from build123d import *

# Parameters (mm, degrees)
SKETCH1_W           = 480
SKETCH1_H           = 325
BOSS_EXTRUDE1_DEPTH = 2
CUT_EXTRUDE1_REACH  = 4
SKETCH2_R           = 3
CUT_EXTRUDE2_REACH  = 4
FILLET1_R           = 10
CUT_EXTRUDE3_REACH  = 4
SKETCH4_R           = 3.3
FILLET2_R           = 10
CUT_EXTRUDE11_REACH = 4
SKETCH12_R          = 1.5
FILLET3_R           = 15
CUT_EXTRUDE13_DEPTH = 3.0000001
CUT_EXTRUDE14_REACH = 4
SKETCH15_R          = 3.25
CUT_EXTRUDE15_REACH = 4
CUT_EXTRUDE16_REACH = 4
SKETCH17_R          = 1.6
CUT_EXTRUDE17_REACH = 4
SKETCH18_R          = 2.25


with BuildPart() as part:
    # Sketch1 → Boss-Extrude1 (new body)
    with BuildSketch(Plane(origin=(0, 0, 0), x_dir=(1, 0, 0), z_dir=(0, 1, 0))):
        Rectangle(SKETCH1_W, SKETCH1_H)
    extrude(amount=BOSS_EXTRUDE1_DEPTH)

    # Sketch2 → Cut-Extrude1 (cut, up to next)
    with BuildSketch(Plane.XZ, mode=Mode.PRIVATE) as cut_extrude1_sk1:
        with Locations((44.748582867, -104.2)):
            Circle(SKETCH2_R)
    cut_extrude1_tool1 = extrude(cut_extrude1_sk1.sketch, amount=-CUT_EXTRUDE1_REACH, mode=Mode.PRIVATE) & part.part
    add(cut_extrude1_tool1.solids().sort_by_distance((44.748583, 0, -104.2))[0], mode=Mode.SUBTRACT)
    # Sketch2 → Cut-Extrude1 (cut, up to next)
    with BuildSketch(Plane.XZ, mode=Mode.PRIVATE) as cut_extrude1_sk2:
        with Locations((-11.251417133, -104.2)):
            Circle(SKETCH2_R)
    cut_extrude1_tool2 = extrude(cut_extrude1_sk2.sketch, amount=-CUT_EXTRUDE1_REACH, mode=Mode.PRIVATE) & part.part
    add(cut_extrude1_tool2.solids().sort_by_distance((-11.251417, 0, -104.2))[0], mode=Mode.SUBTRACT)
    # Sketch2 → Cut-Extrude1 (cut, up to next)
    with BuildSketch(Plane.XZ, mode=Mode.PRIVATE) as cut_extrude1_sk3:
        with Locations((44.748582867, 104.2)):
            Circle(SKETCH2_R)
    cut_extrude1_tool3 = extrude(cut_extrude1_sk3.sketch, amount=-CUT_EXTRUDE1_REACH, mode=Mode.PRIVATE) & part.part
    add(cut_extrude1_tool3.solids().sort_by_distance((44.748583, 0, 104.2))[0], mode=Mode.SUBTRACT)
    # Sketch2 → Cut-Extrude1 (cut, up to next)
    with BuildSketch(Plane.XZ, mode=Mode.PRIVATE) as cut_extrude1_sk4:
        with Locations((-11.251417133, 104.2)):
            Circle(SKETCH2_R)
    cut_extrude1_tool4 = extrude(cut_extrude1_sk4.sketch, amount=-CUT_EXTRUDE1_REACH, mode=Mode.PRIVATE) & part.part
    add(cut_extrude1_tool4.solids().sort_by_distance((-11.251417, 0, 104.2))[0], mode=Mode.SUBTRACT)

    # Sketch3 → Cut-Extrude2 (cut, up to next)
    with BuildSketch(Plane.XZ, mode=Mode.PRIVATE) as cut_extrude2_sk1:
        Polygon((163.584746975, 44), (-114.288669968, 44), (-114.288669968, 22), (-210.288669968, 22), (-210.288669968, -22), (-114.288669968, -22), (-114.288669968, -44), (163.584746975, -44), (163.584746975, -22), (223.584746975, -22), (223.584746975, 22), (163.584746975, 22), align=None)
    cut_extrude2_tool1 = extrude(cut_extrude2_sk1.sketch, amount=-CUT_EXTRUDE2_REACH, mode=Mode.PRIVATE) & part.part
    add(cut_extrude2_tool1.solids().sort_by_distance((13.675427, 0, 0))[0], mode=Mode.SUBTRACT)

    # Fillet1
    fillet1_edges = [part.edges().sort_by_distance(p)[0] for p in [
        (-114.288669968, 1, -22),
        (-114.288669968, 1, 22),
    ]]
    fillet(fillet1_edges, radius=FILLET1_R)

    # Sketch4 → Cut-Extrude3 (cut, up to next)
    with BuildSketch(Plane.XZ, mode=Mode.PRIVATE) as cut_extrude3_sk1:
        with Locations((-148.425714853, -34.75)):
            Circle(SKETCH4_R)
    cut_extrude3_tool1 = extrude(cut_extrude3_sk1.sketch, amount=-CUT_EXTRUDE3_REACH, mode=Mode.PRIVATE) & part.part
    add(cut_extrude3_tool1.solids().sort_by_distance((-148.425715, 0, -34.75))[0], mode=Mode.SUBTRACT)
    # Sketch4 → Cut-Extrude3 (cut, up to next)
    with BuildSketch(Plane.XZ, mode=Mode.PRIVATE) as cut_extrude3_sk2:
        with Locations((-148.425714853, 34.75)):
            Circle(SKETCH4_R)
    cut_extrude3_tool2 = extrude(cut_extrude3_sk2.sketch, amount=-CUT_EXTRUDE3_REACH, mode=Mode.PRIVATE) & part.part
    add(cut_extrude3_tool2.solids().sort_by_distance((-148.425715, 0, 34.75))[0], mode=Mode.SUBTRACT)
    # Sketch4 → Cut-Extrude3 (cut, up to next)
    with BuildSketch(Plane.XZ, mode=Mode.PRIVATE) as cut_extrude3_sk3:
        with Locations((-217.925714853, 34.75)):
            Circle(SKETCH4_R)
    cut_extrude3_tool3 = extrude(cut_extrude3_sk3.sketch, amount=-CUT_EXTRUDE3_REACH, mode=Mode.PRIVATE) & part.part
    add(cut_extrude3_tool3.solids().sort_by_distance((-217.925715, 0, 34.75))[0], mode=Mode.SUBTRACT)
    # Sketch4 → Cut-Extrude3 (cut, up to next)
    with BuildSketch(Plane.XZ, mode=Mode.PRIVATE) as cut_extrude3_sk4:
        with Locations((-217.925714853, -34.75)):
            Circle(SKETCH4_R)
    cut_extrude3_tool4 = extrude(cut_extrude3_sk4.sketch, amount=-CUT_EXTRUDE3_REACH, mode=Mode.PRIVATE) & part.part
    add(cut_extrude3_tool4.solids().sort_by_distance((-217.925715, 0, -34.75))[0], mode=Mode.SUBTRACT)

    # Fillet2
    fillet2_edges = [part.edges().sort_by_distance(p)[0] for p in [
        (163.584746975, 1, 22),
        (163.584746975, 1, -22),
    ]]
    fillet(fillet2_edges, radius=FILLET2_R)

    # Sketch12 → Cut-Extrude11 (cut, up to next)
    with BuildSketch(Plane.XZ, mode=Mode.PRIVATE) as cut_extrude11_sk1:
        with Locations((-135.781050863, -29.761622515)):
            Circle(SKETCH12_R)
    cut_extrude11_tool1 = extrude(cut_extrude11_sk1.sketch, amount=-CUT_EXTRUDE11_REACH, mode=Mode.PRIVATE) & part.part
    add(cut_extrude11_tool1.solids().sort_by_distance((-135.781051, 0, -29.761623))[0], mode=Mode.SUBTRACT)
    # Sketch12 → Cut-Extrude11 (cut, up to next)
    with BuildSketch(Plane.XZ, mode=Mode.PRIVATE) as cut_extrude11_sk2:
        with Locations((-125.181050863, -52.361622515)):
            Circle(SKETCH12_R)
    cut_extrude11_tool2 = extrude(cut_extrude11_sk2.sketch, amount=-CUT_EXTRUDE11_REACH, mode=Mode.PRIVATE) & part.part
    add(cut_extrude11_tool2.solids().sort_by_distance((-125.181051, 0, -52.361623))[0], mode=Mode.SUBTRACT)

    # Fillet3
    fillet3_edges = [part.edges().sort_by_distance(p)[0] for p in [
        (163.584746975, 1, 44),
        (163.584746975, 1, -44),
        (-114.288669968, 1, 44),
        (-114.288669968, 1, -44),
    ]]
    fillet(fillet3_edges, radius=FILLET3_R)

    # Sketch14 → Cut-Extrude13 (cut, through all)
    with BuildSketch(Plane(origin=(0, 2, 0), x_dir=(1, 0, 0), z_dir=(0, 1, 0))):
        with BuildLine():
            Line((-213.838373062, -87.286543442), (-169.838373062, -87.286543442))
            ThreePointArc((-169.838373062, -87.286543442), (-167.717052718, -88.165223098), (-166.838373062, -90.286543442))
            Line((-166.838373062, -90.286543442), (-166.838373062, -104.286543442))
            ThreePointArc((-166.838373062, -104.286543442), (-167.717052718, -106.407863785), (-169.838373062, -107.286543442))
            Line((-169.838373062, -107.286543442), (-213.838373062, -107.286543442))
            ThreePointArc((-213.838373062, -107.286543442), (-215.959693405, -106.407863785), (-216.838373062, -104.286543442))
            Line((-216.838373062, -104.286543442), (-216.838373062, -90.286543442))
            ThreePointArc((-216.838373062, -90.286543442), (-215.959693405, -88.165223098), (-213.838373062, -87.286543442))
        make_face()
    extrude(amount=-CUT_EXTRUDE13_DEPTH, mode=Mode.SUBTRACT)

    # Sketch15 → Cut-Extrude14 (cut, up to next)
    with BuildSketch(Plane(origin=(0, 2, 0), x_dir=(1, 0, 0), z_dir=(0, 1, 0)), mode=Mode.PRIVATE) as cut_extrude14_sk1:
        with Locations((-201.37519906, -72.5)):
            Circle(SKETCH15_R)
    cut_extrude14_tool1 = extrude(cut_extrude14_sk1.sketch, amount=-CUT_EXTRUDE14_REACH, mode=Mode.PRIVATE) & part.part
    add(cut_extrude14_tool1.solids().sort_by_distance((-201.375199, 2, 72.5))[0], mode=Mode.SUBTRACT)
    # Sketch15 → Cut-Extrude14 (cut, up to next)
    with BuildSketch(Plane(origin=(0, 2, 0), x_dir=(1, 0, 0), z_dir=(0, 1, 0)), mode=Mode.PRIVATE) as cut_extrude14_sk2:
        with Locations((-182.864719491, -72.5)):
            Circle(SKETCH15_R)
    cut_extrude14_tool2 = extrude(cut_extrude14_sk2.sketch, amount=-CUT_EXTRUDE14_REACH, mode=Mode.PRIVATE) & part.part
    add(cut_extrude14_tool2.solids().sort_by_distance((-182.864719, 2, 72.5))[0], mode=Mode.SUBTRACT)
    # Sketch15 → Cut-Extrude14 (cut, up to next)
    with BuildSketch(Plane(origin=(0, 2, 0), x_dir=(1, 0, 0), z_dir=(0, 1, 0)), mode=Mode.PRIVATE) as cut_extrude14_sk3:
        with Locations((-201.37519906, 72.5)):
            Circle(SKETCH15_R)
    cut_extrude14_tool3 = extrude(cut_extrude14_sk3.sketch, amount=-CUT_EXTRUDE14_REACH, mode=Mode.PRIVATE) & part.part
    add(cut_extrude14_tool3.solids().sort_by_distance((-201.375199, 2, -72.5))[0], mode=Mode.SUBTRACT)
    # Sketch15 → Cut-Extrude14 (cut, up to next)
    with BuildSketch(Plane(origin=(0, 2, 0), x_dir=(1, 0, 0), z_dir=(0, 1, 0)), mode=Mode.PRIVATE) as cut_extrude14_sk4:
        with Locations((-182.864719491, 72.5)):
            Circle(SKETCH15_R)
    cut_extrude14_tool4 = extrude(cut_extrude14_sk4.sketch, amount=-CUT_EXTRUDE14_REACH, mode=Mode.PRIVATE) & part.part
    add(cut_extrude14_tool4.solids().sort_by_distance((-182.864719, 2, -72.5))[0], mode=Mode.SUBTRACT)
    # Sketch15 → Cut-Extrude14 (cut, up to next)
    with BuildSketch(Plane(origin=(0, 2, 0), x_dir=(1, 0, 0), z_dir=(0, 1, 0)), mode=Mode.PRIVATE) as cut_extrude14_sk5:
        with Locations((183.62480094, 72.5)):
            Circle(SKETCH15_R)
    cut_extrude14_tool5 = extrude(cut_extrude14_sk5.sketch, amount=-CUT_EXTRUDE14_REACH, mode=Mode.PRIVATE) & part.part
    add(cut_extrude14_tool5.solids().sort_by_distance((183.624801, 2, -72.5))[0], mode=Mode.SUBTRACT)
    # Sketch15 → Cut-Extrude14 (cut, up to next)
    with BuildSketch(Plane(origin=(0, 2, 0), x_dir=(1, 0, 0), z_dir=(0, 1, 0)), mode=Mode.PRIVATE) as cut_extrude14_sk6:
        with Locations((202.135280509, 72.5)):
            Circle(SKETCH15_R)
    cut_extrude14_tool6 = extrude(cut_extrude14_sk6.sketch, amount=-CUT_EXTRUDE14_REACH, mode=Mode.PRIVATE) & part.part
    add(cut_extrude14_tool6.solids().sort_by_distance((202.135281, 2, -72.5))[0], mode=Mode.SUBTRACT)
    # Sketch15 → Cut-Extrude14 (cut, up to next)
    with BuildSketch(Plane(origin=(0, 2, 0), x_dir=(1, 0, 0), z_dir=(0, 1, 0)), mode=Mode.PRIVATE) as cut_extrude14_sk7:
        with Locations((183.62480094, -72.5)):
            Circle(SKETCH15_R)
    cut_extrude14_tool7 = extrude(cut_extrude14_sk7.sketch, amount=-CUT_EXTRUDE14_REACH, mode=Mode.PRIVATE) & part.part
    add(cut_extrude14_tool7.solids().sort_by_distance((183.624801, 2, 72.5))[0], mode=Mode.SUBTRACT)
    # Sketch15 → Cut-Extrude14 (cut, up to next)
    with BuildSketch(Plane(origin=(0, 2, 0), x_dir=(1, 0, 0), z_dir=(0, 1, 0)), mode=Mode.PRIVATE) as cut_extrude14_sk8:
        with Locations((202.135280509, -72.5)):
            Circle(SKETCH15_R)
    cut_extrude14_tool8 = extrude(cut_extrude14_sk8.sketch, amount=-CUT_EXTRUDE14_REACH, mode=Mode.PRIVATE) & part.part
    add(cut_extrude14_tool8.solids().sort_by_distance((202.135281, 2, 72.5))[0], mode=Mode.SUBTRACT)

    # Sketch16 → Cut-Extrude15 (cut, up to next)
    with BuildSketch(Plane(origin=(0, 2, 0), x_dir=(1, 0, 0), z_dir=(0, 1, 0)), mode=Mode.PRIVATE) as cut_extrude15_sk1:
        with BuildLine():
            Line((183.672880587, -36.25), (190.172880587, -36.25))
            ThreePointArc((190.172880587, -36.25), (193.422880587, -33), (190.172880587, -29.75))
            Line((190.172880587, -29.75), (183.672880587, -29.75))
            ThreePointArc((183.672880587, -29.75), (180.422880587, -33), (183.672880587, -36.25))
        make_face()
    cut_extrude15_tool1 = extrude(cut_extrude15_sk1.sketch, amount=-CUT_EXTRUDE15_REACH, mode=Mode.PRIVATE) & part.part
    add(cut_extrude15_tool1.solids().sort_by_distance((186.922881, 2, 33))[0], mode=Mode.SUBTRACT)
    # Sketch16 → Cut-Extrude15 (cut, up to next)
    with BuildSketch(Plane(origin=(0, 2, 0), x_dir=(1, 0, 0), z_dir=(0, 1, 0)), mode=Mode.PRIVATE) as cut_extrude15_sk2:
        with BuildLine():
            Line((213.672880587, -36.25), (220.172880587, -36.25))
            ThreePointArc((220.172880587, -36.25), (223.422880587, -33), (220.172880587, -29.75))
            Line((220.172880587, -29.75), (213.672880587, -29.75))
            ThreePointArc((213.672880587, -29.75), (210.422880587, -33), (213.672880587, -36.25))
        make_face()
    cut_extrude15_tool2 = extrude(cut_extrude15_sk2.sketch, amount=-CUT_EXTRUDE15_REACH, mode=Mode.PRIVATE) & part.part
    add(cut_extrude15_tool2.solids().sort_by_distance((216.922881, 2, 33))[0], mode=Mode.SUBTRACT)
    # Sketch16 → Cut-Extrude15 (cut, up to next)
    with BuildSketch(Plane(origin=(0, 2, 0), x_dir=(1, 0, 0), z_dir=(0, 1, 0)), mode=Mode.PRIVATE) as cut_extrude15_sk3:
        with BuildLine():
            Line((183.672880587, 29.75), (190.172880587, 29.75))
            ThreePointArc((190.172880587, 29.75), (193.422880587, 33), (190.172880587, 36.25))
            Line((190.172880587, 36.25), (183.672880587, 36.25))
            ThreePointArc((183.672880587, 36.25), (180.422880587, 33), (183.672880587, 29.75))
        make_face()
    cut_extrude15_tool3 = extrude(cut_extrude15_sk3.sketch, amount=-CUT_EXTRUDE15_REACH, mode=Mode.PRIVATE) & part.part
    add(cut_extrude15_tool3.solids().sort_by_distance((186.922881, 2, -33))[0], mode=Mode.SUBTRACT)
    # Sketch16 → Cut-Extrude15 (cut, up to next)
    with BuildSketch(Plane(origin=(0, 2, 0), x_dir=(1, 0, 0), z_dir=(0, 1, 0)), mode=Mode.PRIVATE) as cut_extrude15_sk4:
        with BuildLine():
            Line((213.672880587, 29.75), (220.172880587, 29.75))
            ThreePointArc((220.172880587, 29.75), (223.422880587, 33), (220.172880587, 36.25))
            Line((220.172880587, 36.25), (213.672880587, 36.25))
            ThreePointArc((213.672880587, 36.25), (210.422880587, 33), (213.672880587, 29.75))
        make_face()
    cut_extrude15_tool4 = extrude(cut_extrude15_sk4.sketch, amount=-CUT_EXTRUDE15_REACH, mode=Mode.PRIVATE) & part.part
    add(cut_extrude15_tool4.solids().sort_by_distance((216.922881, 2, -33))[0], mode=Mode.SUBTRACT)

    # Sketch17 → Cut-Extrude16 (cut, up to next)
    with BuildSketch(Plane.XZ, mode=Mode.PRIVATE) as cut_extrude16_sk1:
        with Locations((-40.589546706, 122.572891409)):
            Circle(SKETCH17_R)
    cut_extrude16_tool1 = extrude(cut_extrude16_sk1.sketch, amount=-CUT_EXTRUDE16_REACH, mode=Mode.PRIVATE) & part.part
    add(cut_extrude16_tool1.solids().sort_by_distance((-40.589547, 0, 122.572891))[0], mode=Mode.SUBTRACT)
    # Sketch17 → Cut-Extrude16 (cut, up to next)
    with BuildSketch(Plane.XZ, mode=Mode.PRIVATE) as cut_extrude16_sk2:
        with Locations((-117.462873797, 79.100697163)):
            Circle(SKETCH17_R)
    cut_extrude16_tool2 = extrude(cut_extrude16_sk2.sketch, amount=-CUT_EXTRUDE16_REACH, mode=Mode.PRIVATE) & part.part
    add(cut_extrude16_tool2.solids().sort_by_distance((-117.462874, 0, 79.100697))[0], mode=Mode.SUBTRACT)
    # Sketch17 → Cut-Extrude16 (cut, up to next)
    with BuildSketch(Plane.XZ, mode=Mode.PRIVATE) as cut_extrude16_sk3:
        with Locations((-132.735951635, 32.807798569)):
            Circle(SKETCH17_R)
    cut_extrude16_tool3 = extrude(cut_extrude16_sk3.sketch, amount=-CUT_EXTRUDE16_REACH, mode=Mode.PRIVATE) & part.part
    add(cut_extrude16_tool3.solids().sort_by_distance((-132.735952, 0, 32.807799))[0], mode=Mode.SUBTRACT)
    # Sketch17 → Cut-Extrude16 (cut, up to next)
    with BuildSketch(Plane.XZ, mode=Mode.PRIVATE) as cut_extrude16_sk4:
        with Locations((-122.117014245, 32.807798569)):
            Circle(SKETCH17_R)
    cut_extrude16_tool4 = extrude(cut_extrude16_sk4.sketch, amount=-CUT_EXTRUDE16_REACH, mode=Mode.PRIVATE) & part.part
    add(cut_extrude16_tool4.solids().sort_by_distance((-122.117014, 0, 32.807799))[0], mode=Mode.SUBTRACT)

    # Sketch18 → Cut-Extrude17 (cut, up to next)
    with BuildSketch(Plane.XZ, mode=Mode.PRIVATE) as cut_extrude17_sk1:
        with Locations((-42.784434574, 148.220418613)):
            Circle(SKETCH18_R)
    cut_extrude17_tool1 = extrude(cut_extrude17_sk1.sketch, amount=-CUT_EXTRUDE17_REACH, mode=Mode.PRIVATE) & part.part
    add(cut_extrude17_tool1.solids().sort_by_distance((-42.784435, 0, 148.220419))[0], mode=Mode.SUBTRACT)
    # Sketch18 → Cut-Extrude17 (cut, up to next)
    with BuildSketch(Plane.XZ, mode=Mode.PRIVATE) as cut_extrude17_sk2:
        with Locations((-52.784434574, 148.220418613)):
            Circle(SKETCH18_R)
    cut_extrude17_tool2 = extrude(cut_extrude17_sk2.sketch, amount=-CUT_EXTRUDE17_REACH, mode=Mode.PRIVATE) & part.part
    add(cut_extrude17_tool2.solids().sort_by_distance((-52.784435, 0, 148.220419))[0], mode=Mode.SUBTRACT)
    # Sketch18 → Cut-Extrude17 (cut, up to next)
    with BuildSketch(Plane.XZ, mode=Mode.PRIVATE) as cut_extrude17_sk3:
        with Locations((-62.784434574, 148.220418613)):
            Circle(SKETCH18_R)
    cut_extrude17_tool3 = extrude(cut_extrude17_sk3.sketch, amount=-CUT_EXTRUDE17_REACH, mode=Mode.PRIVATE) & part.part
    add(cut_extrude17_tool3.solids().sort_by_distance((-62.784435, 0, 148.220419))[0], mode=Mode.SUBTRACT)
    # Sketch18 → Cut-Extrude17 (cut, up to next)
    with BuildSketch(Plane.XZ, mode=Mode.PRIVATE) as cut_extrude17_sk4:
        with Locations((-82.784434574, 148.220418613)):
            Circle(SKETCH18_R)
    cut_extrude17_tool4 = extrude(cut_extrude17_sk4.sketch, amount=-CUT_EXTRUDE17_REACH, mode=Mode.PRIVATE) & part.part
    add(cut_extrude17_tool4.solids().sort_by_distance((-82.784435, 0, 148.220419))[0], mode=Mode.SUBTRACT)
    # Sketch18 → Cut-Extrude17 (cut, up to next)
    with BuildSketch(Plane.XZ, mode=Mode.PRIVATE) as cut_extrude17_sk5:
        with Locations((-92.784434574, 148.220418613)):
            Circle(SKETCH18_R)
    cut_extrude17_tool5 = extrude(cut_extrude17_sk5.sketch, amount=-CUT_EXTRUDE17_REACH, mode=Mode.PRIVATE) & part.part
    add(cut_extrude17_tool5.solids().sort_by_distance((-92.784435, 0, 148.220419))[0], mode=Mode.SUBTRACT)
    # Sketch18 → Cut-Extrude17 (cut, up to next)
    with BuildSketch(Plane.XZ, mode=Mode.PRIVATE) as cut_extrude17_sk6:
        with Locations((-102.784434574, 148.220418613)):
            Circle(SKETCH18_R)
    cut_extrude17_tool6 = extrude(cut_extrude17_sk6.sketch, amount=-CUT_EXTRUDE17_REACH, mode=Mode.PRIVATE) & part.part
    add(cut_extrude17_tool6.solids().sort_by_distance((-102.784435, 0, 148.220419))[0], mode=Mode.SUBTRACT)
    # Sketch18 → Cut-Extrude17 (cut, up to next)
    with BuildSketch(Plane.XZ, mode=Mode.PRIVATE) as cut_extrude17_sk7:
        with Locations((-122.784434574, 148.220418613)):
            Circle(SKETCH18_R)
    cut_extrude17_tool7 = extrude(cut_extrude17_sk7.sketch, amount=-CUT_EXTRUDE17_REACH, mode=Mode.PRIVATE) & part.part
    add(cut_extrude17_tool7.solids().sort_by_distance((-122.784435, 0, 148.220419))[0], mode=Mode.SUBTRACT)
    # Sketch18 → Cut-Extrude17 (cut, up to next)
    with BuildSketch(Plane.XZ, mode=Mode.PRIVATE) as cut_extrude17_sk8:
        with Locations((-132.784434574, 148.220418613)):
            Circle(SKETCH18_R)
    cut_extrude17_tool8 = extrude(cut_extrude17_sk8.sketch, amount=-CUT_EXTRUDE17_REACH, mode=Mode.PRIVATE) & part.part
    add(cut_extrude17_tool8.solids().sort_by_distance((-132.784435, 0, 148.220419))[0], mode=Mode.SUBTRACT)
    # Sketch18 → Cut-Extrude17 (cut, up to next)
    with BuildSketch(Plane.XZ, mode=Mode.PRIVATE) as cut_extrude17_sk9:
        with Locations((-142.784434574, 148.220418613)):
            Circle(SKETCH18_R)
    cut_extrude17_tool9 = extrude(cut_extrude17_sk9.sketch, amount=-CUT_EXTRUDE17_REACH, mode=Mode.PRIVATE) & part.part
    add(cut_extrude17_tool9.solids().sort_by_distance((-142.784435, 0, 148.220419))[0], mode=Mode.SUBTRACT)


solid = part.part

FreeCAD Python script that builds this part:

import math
import FreeCAD as App
import Part
import Sketcher

V = App.Vector
Q = App.Units.Quantity


def edges_at(feature, points):
    """Names of the edges that pass closest to the given points."""
    edges = feature.Shape.Edges
    near = lambda p: min(range(len(edges)), key=lambda i: edges[i].distToShape(Part.Vertex(*p))[0])
    return sorted({f"Edge{near(p) + 1}" for p in points})


def add_polygon(sketch, points):
    """Adds a closed chain of lines whose ends are joined by coincident constraints."""
    first, n = sketch.GeometryCount, len(points)
    for a, b in zip(points, points[1:] + points[:1]):
        sketch.addGeometry(Part.LineSegment(App.Vector(*a, 0), App.Vector(*b, 0)), False)
    for i in range(n):
        sketch.addConstraint(Sketcher.Constraint("Coincident", first + i, 2, first + (i + 1) % n, 1))

doc = App.newDocument("Part")
body = doc.addObject("PartDesign::Body", "Body")

# Sketch on XZ plane
sketch1 = doc.addObject("Sketcher::SketchObject", "Sketch")
body.addObject(sketch1)
sketch1.AttachmentSupport = (doc.XZ_Plane, [""])
sketch1.MapMode = "FlatFace"
add_polygon(sketch1, [(-240, -162.5), (-240, 162.5), (240, 162.5), (240, -162.5)])  # lines 0-3
sketch1.addConstraint(Sketcher.Constraint("Vertical", 0))
sketch1.addConstraint(Sketcher.Constraint("Horizontal", 1))
sketch1.addConstraint(Sketcher.Constraint("Vertical", 2))
sketch1.addConstraint(Sketcher.Constraint("Horizontal", 3))
sketch1.addConstraint(Sketcher.Constraint("Symmetric", 0, 2, 2, 2, -1, 1))
sketch1.addConstraint(Sketcher.Constraint("DistanceX", 1, 1, 1, 2, Q("480 mm")))
sketch1.addConstraint(Sketcher.Constraint("DistanceY", 0, 1, 0, 2, Q("325 mm")))
pad1 = doc.addObject("PartDesign::Pad", "Pad")
body.addObject(pad1)
pad1.Profile = sketch1
pad1.Length = 2
pad1.Reversed = True

# Sketch on XZ plane
sketch2 = doc.addObject("Sketcher::SketchObject", "Sketch001")
body.addObject(sketch2)
sketch2.AttachmentSupport = (doc.XZ_Plane, [""])
sketch2.MapMode = "FlatFace"
sketch2.addGeometry(Part.Circle(V(44.748583, -104.2, 0), V(0, 0, 1), 3), False)
sketch2.addConstraint(Sketcher.Constraint("Diameter", 0, Q("6 mm")))
sketch2.addConstraint(Sketcher.Constraint("DistanceY", 0, 3, -1, 1, Q("104.2 mm")))
sketch2.addConstraint(Sketcher.Constraint("DistanceX", -1, 1, 0, 3, Q("44.748583 mm")))
pocket1 = doc.addObject("PartDesign::Pocket", "Pocket")
body.addObject(pocket1)
pocket1.Profile = sketch2
pocket1.Type = "UpToFirst"

# Sketch on XZ plane
sketch3 = doc.addObject("Sketcher::SketchObject", "Sketch002")
body.addObject(sketch3)
sketch3.AttachmentSupport = (doc.XZ_Plane, [""])
sketch3.MapMode = "FlatFace"
sketch3.addGeometry(Part.Circle(V(-11.251417, -104.2, 0), V(0, 0, 1), 3), False)
sketch3.addConstraint(Sketcher.Constraint("Diameter", 0, Q("6 mm")))
sketch3.addConstraint(Sketcher.Constraint("DistanceY", 0, 3, -1, 1, Q("104.2 mm")))
sketch3.addConstraint(Sketcher.Constraint("DistanceX", 0, 3, -1, 1, Q("11.251417 mm")))
pocket2 = doc.addObject("PartDesign::Pocket", "Pocket001")
body.addObject(pocket2)
pocket2.Profile = sketch3
pocket2.Type = "UpToFirst"

# Sketch on XZ plane
sketch4 = doc.addObject("Sketcher::SketchObject", "Sketch003")
body.addObject(sketch4)
sketch4.AttachmentSupport = (doc.XZ_Plane, [""])
sketch4.MapMode = "FlatFace"
sketch4.addGeometry(Part.Circle(V(44.748583, 104.2, 0), V(0, 0, 1), 3), False)
sketch4.addConstraint(Sketcher.Constraint("Diameter", 0, Q("6 mm")))
sketch4.addConstraint(Sketcher.Constraint("DistanceY", -1, 1, 0, 3, Q("104.2 mm")))
sketch4.addConstraint(Sketcher.Constraint("DistanceX", -1, 1, 0, 3, Q("44.748583 mm")))
pocket3 = doc.addObject("PartDesign::Pocket", "Pocket002")
body.addObject(pocket3)
pocket3.Profile = sketch4
pocket3.Type = "UpToFirst"

# Sketch on XZ plane
sketch5 = doc.addObject("Sketcher::SketchObject", "Sketch004")
body.addObject(sketch5)
sketch5.AttachmentSupport = (doc.XZ_Plane, [""])
sketch5.MapMode = "FlatFace"
sketch5.addGeometry(Part.Circle(V(-11.251417, 104.2, 0), V(0, 0, 1), 3), False)
sketch5.addConstraint(Sketcher.Constraint("Diameter", 0, Q("6 mm")))
sketch5.addConstraint(Sketcher.Constraint("DistanceY", -1, 1, 0, 3, Q("104.2 mm")))
sketch5.addConstraint(Sketcher.Constraint("DistanceX", 0, 3, -1, 1, Q("11.251417 mm")))
pocket4 = doc.addObject("PartDesign::Pocket", "Pocket003")
body.addObject(pocket4)
pocket4.Profile = sketch5
pocket4.Type = "UpToFirst"

# Sketch on XZ plane
sketch6 = doc.addObject("Sketcher::SketchObject", "Sketch005")
body.addObject(sketch6)
sketch6.AttachmentSupport = (doc.XZ_Plane, [""])
sketch6.MapMode = "FlatFace"
add_polygon(sketch6, [(163.584747, 44), (-114.28867, 44), (-114.28867, 22), (-210.28867, 22), (-210.28867, -22), (-114.28867, -22), (-114.28867, -44), (163.584747, -44), (163.584747, -22), (223.584747, -22), (223.584747, 22), (163.584747, 22)])  # lines 0-11
sketch6.addConstraint(Sketcher.Constraint("Horizontal", 0))
sketch6.addConstraint(Sketcher.Constraint("Vertical", 1))
sketch6.addConstraint(Sketcher.Constraint("Horizontal", 2))
sketch6.addConstraint(Sketcher.Constraint("Vertical", 3))
sketch6.addConstraint(Sketcher.Constraint("Horizontal", 4))
sketch6.addConstraint(Sketcher.Constraint("Vertical", 5))
sketch6.addConstraint(Sketcher.Constraint("Horizontal", 6))
sketch6.addConstraint(Sketcher.Constraint("Vertical", 7))
sketch6.addConstraint(Sketcher.Constraint("Horizontal", 8))
sketch6.addConstraint(Sketcher.Constraint("Vertical", 9))
sketch6.addConstraint(Sketcher.Constraint("Horizontal", 10))
sketch6.addConstraint(Sketcher.Constraint("Vertical", 11))
sketch6.addConstraint(Sketcher.Constraint("Symmetric", 1, 2, 4, 2, -1))
sketch6.addConstraint(Sketcher.Constraint("Symmetric", 7, 2, 10, 2, -1))
sketch6.addConstraint(Sketcher.Constraint("Horizontal", 4, 2, 7, 2))
sketch6.addConstraint(Sketcher.Constraint("Equal", 1, 5))
sketch6.addConstraint(Sketcher.Constraint("DistanceX", 2, 2, 2, 1, Q("96 mm")))
sketch6.addConstraint(Sketcher.Constraint("DistanceX", 8, 1, 8, 2, Q("60 mm")))
sketch6.addConstraint(Sketcher.Constraint("DistanceY", 1, 2, 1, 1, Q("22 mm")))
sketch6.addConstraint(Sketcher.Constraint("DistanceY", 3, 2, 3, 1, Q("44 mm")))
sketch6.addConstraint(Sketcher.Constraint("DistanceX", 0, 2, 0, 1, Q("277.873417 mm")))
sketch6.addConstraint(Sketcher.Constraint("DistanceX", 0, 2, -1, 1, Q("114.28867 mm")))
pocket5 = doc.addObject("PartDesign::Pocket", "Pocket004")
body.addObject(pocket5)
pocket5.Profile = sketch6
pocket5.Type = "UpToFirst"
doc.recompute()

fillet = doc.addObject("PartDesign::Fillet", "Fillet")
body.addObject(fillet)
fillet.Base = (pocket5, edges_at(pocket5, [(-114.289, 1, -22), (-114.289, 1, 22)]))
fillet.Radius = 10

# Sketch on XZ plane
sketch7 = doc.addObject("Sketcher::SketchObject", "Sketch006")
body.addObject(sketch7)
sketch7.AttachmentSupport = (doc.XZ_Plane, [""])
sketch7.MapMode = "FlatFace"
sketch7.addGeometry(Part.Circle(V(-148.425715, -34.75, 0), V(0, 0, 1), 3.3), False)
sketch7.addConstraint(Sketcher.Constraint("Diameter", 0, Q("6.6 mm")))
sketch7.addConstraint(Sketcher.Constraint("DistanceY", 0, 3, -1, 1, Q("34.75 mm")))
sketch7.addConstraint(Sketcher.Constraint("DistanceX", 0, 3, -1, 1, Q("148.425715 mm")))
pocket6 = doc.addObject("PartDesign::Pocket", "Pocket005")
body.addObject(pocket6)
pocket6.Profile = sketch7
pocket6.Type = "UpToFirst"

# Sketch on XZ plane
sketch8 = doc.addObject("Sketcher::SketchObject", "Sketch007")
body.addObject(sketch8)
sketch8.AttachmentSupport = (doc.XZ_Plane, [""])
sketch8.MapMode = "FlatFace"
sketch8.addGeometry(Part.Circle(V(-148.425715, 34.75, 0), V(0, 0, 1), 3.3), False)
sketch8.addConstraint(Sketcher.Constraint("Diameter", 0, Q("6.6 mm")))
sketch8.addConstraint(Sketcher.Constraint("DistanceY", -1, 1, 0, 3, Q("34.75 mm")))
sketch8.addConstraint(Sketcher.Constraint("DistanceX", 0, 3, -1, 1, Q("148.425715 mm")))
pocket7 = doc.addObject("PartDesign::Pocket", "Pocket006")
body.addObject(pocket7)
pocket7.Profile = sketch8
pocket7.Type = "UpToFirst"

# Sketch on XZ plane
sketch9 = doc.addObject("Sketcher::SketchObject", "Sketch008")
body.addObject(sketch9)
sketch9.AttachmentSupport = (doc.XZ_Plane, [""])
sketch9.MapMode = "FlatFace"
sketch9.addGeometry(Part.Circle(V(-217.925715, 34.75, 0), V(0, 0, 1), 3.3), False)
sketch9.addConstraint(Sketcher.Constraint("Diameter", 0, Q("6.6 mm")))
sketch9.addConstraint(Sketcher.Constraint("DistanceY", -1, 1, 0, 3, Q("34.75 mm")))
sketch9.addConstraint(Sketcher.Constraint("DistanceX", 0, 3, -1, 1, Q("217.925715 mm")))
pocket8 = doc.addObject("PartDesign::Pocket", "Pocket007")
body.addObject(pocket8)
pocket8.Profile = sketch9
pocket8.Type = "UpToFirst"

# Sketch on XZ plane
sketch10 = doc.addObject("Sketcher::SketchObject", "Sketch009")
body.addObject(sketch10)
sketch10.AttachmentSupport = (doc.XZ_Plane, [""])
sketch10.MapMode = "FlatFace"
sketch10.addGeometry(Part.Circle(V(-217.925715, -34.75, 0), V(0, 0, 1), 3.3), False)
sketch10.addConstraint(Sketcher.Constraint("Diameter", 0, Q("6.6 mm")))
sketch10.addConstraint(Sketcher.Constraint("DistanceY", 0, 3, -1, 1, Q("34.75 mm")))
sketch10.addConstraint(Sketcher.Constraint("DistanceX", 0, 3, -1, 1, Q("217.925715 mm")))
pocket9 = doc.addObject("PartDesign::Pocket", "Pocket008")
body.addObject(pocket9)
pocket9.Profile = sketch10
pocket9.Type = "UpToFirst"
doc.recompute()

fillet2 = doc.addObject("PartDesign::Fillet", "Fillet001")
body.addObject(fillet2)
fillet2.Base = (pocket9, edges_at(pocket9, [(163.585, 1, 22), (163.585, 1, -22)]))
fillet2.Radius = 10

# Sketch on XZ plane
sketch11 = doc.addObject("Sketcher::SketchObject", "Sketch010")
body.addObject(sketch11)
sketch11.AttachmentSupport = (doc.XZ_Plane, [""])
sketch11.MapMode = "FlatFace"
sketch11.addGeometry(Part.Circle(V(-135.781051, -29.761623, 0), V(0, 0, 1), 1.5), False)
sketch11.addConstraint(Sketcher.Constraint("Diameter", 0, Q("3 mm")))
sketch11.addConstraint(Sketcher.Constraint("DistanceX", 0, 3, -1, 1, Q("135.781051 mm")))
sketch11.addConstraint(Sketcher.Constraint("DistanceY", 0, 3, -1, 1, Q("29.761623 mm")))
pocket10 = doc.addObject("PartDesign::Pocket", "Pocket009")
body.addObject(pocket10)
pocket10.Profile = sketch11
pocket10.Type = "UpToFirst"

# Sketch on XZ plane
sketch12 = doc.addObject("Sketcher::SketchObject", "Sketch011")
body.addObject(sketch12)
sketch12.AttachmentSupport = (doc.XZ_Plane, [""])
sketch12.MapMode = "FlatFace"
sketch12.addGeometry(Part.Circle(V(-125.181051, -52.361623, 0), V(0, 0, 1), 1.5), False)
sketch12.addConstraint(Sketcher.Constraint("Diameter", 0, Q("3 mm")))
sketch12.addConstraint(Sketcher.Constraint("DistanceX", 0, 3, -1, 1, Q("125.181051 mm")))
sketch12.addConstraint(Sketcher.Constraint("DistanceY", 0, 3, -1, 1, Q("52.361623 mm")))
pocket11 = doc.addObject("PartDesign::Pocket", "Pocket010")
body.addObject(pocket11)
pocket11.Profile = sketch12
pocket11.Type = "UpToFirst"
doc.recompute()

fillet3 = doc.addObject("PartDesign::Fillet", "Fillet002")
body.addObject(fillet3)
fillet3.Base = (pocket11, edges_at(pocket11, [
    (163.585, 1, 44),
    (163.585, 1, -44),
    (-114.289, 1, 44),
    (-114.289, 1, -44),
]))
fillet3.Radius = 15

# Sketch on XZ plane
sketch13 = doc.addObject("Sketcher::SketchObject", "Sketch012")
body.addObject(sketch13)
sketch13.AttachmentSupport = (doc.XZ_Plane, [""])
sketch13.MapMode = "FlatFace"
sketch13.AttachmentOffset = App.Placement(V(0, 0, -2), App.Rotation())
sketch13.addGeometry(Part.LineSegment(V(-169.838373, 87.286543, 0), V(-213.838373, 87.286543, 0)), False)
sketch13.addGeometry(Part.ArcOfCircle(Part.Circle(V(-213.838373, 90.286543, 0), V(0, 0, 1), 3), math.radians(180), math.radians(270)), False)
sketch13.addGeometry(Part.LineSegment(V(-216.838373, 90.286543, 0), V(-216.838373, 104.286543, 0)), False)
sketch13.addGeometry(Part.ArcOfCircle(Part.Circle(V(-213.838373, 104.286543, 0), V(0, 0, 1), 3), math.radians(90), math.radians(180)), False)
sketch13.addGeometry(Part.LineSegment(V(-213.838373, 107.286543, 0), V(-169.838373, 107.286543, 0)), False)
sketch13.addGeometry(Part.ArcOfCircle(Part.Circle(V(-169.838373, 104.286543, 0), V(0, 0, 1), 3), math.radians(0), math.radians(90)), False)
sketch13.addGeometry(Part.LineSegment(V(-166.838373, 104.286543, 0), V(-166.838373, 90.286543, 0)), False)
sketch13.addGeometry(Part.ArcOfCircle(Part.Circle(V(-169.838373, 90.286543, 0), V(0, 0, 1), 3), math.radians(-90), math.radians(0)), False)
sketch13.addConstraint(Sketcher.Constraint("Tangent", 0, 2, 1, 2))
sketch13.addConstraint(Sketcher.Constraint("Tangent", 1, 1, 2, 1))
sketch13.addConstraint(Sketcher.Constraint("Tangent", 2, 2, 3, 2))
sketch13.addConstraint(Sketcher.Constraint("Tangent", 3, 1, 4, 1))
sketch13.addConstraint(Sketcher.Constraint("Tangent", 4, 2, 5, 2))
sketch13.addConstraint(Sketcher.Constraint("Tangent", 5, 1, 6, 1))
sketch13.addConstraint(Sketcher.Constraint("Tangent", 6, 2, 7, 2))
sketch13.addConstraint(Sketcher.Constraint("Tangent", 7, 1, 0, 1))
sketch13.addConstraint(Sketcher.Constraint("Horizontal", 0))
sketch13.addConstraint(Sketcher.Constraint("Vertical", 2))
sketch13.addConstraint(Sketcher.Constraint("Horizontal", 4))
sketch13.addConstraint(Sketcher.Constraint("Vertical", 6))
sketch13.addConstraint(Sketcher.Constraint("Equal", 1, 3))
sketch13.addConstraint(Sketcher.Constraint("Equal", 3, 5))
sketch13.addConstraint(Sketcher.Constraint("Equal", 5, 7))
sketch13.addConstraint(Sketcher.Constraint("Radius", 1, Q("3 mm")))
sketch13.addConstraint(Sketcher.Constraint("DistanceX", 0, 2, 0, 1, Q("44 mm")))
sketch13.addConstraint(Sketcher.Constraint("DistanceY", 2, 1, 2, 2, Q("14 mm")))
sketch13.addConstraint(Sketcher.Constraint("DistanceX", 1, 3, -1, 1, Q("213.838373 mm")))
sketch13.addConstraint(Sketcher.Constraint("DistanceY", -1, 1, 1, 3, Q("90.286543 mm")))
pocket12 = doc.addObject("PartDesign::Pocket", "Pocket011")
body.addObject(pocket12)
pocket12.Profile = sketch13
pocket12.Type = "ThroughAll"
pocket12.Reversed = True

# Sketch on XZ plane
sketch14 = doc.addObject("Sketcher::SketchObject", "Sketch013")
body.addObject(sketch14)
sketch14.AttachmentSupport = (doc.XZ_Plane, [""])
sketch14.MapMode = "FlatFace"
sketch14.AttachmentOffset = App.Placement(V(0, 0, -2), App.Rotation())
sketch14.addGeometry(Part.Circle(V(-201.375199, 72.5, 0), V(0, 0, 1), 3.25), False)
sketch14.addConstraint(Sketcher.Constraint("Diameter", 0, Q("6.5 mm")))
sketch14.addConstraint(Sketcher.Constraint("DistanceY", -1, 1, 0, 3, Q("72.5 mm")))
sketch14.addConstraint(Sketcher.Constraint("DistanceX", 0, 3, -1, 1, Q("201.375199 mm")))
pocket13 = doc.addObject("PartDesign::Pocket", "Pocket012")
body.addObject(pocket13)
pocket13.Profile = sketch14
pocket13.Type = "UpToFirst"
pocket13.Reversed = True

# Sketch on XZ plane
sketch15 = doc.addObject("Sketcher::SketchObject", "Sketch014")
body.addObject(sketch15)
sketch15.AttachmentSupport = (doc.XZ_Plane, [""])
sketch15.MapMode = "FlatFace"
sketch15.AttachmentOffset = App.Placement(V(0, 0, -2), App.Rotation())
sketch15.addGeometry(Part.Circle(V(-182.864719, 72.5, 0), V(0, 0, 1), 3.25), False)
sketch15.addConstraint(Sketcher.Constraint("Diameter", 0, Q("6.5 mm")))
sketch15.addConstraint(Sketcher.Constraint("DistanceY", -1, 1, 0, 3, Q("72.5 mm")))
sketch15.addConstraint(Sketcher.Constraint("DistanceX", 0, 3, -1, 1, Q("182.864719 mm")))
pocket14 = doc.addObject("PartDesign::Pocket", "Pocket013")
body.addObject(pocket14)
pocket14.Profile = sketch15
pocket14.Type = "UpToFirst"
pocket14.Reversed = True

# Sketch on XZ plane
sketch16 = doc.addObject("Sketcher::SketchObject", "Sketch015")
body.addObject(sketch16)
sketch16.AttachmentSupport = (doc.XZ_Plane, [""])
sketch16.MapMode = "FlatFace"
sketch16.AttachmentOffset = App.Placement(V(0, 0, -2), App.Rotation())
sketch16.addGeometry(Part.Circle(V(-201.375199, -72.5, 0), V(0, 0, 1), 3.25), False)
sketch16.addConstraint(Sketcher.Constraint("Diameter", 0, Q("6.5 mm")))
sketch16.addConstraint(Sketcher.Constraint("DistanceY", 0, 3, -1, 1, Q("72.5 mm")))
sketch16.addConstraint(Sketcher.Constraint("DistanceX", 0, 3, -1, 1, Q("201.375199 mm")))
pocket15 = doc.addObject("PartDesign::Pocket", "Pocket014")
body.addObject(pocket15)
pocket15.Profile = sketch16
pocket15.Type = "UpToFirst"
pocket15.Reversed = True

# Sketch on XZ plane
sketch17 = doc.addObject("Sketcher::SketchObject", "Sketch016")
body.addObject(sketch17)
sketch17.AttachmentSupport = (doc.XZ_Plane, [""])
sketch17.MapMode = "FlatFace"
sketch17.AttachmentOffset = App.Placement(V(0, 0, -2), App.Rotation())
sketch17.addGeometry(Part.Circle(V(-182.864719, -72.5, 0), V(0, 0, 1), 3.25), False)
sketch17.addConstraint(Sketcher.Constraint("Diameter", 0, Q("6.5 mm")))
sketch17.addConstraint(Sketcher.Constraint("DistanceY", 0, 3, -1, 1, Q("72.5 mm")))
sketch17.addConstraint(Sketcher.Constraint("DistanceX", 0, 3, -1, 1, Q("182.864719 mm")))
pocket16 = doc.addObject("PartDesign::Pocket", "Pocket015")
body.addObject(pocket16)
pocket16.Profile = sketch17
pocket16.Type = "UpToFirst"
pocket16.Reversed = True

# Sketch on XZ plane
sketch18 = doc.addObject("Sketcher::SketchObject", "Sketch017")
body.addObject(sketch18)
sketch18.AttachmentSupport = (doc.XZ_Plane, [""])
sketch18.MapMode = "FlatFace"
sketch18.AttachmentOffset = App.Placement(V(0, 0, -2), App.Rotation())
sketch18.addGeometry(Part.Circle(V(183.624801, -72.5, 0), V(0, 0, 1), 3.25), False)
sketch18.addConstraint(Sketcher.Constraint("Diameter", 0, Q("6.5 mm")))
sketch18.addConstraint(Sketcher.Constraint("DistanceY", 0, 3, -1, 1, Q("72.5 mm")))
sketch18.addConstraint(Sketcher.Constraint("DistanceX", -1, 1, 0, 3, Q("183.624801 mm")))
pocket17 = doc.addObject("PartDesign::Pocket", "Pocket016")
body.addObject(pocket17)
pocket17.Profile = sketch18
pocket17.Type = "UpToFirst"
pocket17.Reversed = True

# Sketch on XZ plane
sketch19 = doc.addObject("Sketcher::SketchObject", "Sketch018")
body.addObject(sketch19)
sketch19.AttachmentSupport = (doc.XZ_Plane, [""])
sketch19.MapMode = "FlatFace"
sketch19.AttachmentOffset = App.Placement(V(0, 0, -2), App.Rotation())
sketch19.addGeometry(Part.Circle(V(202.135281, -72.5, 0), V(0, 0, 1), 3.25), False)
sketch19.addConstraint(Sketcher.Constraint("Diameter", 0, Q("6.5 mm")))
sketch19.addConstraint(Sketcher.Constraint("DistanceY", 0, 3, -1, 1, Q("72.5 mm")))
sketch19.addConstraint(Sketcher.Constraint("DistanceX", -1, 1, 0, 3, Q("202.135281 mm")))
pocket18 = doc.addObject("PartDesign::Pocket", "Pocket017")
body.addObject(pocket18)
pocket18.Profile = sketch19
pocket18.Type = "UpToFirst"
pocket18.Reversed = True

# Sketch on XZ plane
sketch20 = doc.addObject("Sketcher::SketchObject", "Sketch019")
body.addObject(sketch20)
sketch20.AttachmentSupport = (doc.XZ_Plane, [""])
sketch20.MapMode = "FlatFace"
sketch20.AttachmentOffset = App.Placement(V(0, 0, -2), App.Rotation())
sketch20.addGeometry(Part.Circle(V(183.624801, 72.5, 0), V(0, 0, 1), 3.25), False)
sketch20.addConstraint(Sketcher.Constraint("Diameter", 0, Q("6.5 mm")))
sketch20.addConstraint(Sketcher.Constraint("DistanceY", -1, 1, 0, 3, Q("72.5 mm")))
sketch20.addConstraint(Sketcher.Constraint("DistanceX", -1, 1, 0, 3, Q("183.624801 mm")))
pocket19 = doc.addObject("PartDesign::Pocket", "Pocket018")
body.addObject(pocket19)
pocket19.Profile = sketch20
pocket19.Type = "UpToFirst"
pocket19.Reversed = True

# Sketch on XZ plane
sketch21 = doc.addObject("Sketcher::SketchObject", "Sketch020")
body.addObject(sketch21)
sketch21.AttachmentSupport = (doc.XZ_Plane, [""])
sketch21.MapMode = "FlatFace"
sketch21.AttachmentOffset = App.Placement(V(0, 0, -2), App.Rotation())
sketch21.addGeometry(Part.Circle(V(202.135281, 72.5, 0), V(0, 0, 1), 3.25), False)
sketch21.addConstraint(Sketcher.Constraint("Diameter", 0, Q("6.5 mm")))
sketch21.addConstraint(Sketcher.Constraint("DistanceY", -1, 1, 0, 3, Q("72.5 mm")))
sketch21.addConstraint(Sketcher.Constraint("DistanceX", -1, 1, 0, 3, Q("202.135281 mm")))
pocket20 = doc.addObject("PartDesign::Pocket", "Pocket019")
body.addObject(pocket20)
pocket20.Profile = sketch21
pocket20.Type = "UpToFirst"
pocket20.Reversed = True

# Sketch on XZ plane
sketch22 = doc.addObject("Sketcher::SketchObject", "Sketch021")
body.addObject(sketch22)
sketch22.AttachmentSupport = (doc.XZ_Plane, [""])
sketch22.MapMode = "FlatFace"
sketch22.AttachmentOffset = App.Placement(V(0, 0, -2), App.Rotation())
sketch22.addGeometry(Part.LineSegment(V(183.672881, 36.25, 0), V(190.172881, 36.25, 0)), False)
sketch22.addGeometry(Part.ArcOfCircle(Part.Circle(V(190.172881, 33, 0), V(0, 0, 1), 3.25), math.radians(-90), math.radians(90)), False)
sketch22.addGeometry(Part.LineSegment(V(190.172881, 29.75, 0), V(183.672881, 29.75, 0)), False)
sketch22.addGeometry(Part.ArcOfCircle(Part.Circle(V(183.672881, 33, 0), V(0, 0, 1), 3.25), math.radians(90), math.radians(270)), False)
sketch22.addConstraint(Sketcher.Constraint("Tangent", 0, 2, 1, 2))
sketch22.addConstraint(Sketcher.Constraint("Tangent", 1, 1, 2, 1))
sketch22.addConstraint(Sketcher.Constraint("Tangent", 2, 2, 3, 2))
sketch22.addConstraint(Sketcher.Constraint("Tangent", 3, 1, 0, 1))
sketch22.addConstraint(Sketcher.Constraint("Horizontal", 0))
sketch22.addConstraint(Sketcher.Constraint("Horizontal", 2))
sketch22.addConstraint(Sketcher.Constraint("Radius", 1, Q("3.25 mm")))
sketch22.addConstraint(Sketcher.Constraint("DistanceX", 0, 1, 0, 2, Q("6.5 mm")))
sketch22.addConstraint(Sketcher.Constraint("DistanceY", -1, 1, 1, 3, Q("33 mm")))
sketch22.addConstraint(Sketcher.Constraint("DistanceX", -1, 1, 1, 3, Q("190.172881 mm")))
pocket21 = doc.addObject("PartDesign::Pocket", "Pocket020")
body.addObject(pocket21)
pocket21.Profile = sketch22
pocket21.Type = "UpToFirst"
pocket21.Reversed = True

# Sketch on XZ plane
sketch23 = doc.addObject("Sketcher::SketchObject", "Sketch022")
body.addObject(sketch23)
sketch23.AttachmentSupport = (doc.XZ_Plane, [""])
sketch23.MapMode = "FlatFace"
sketch23.AttachmentOffset = App.Placement(V(0, 0, -2), App.Rotation())
sketch23.addGeometry(Part.LineSegment(V(213.672881, 36.25, 0), V(220.172881, 36.25, 0)), False)
sketch23.addGeometry(Part.ArcOfCircle(Part.Circle(V(220.172881, 33, 0), V(0, 0, 1), 3.25), math.radians(-90), math.radians(90)), False)
sketch23.addGeometry(Part.LineSegment(V(220.172881, 29.75, 0), V(213.672881, 29.75, 0)), False)
sketch23.addGeometry(Part.ArcOfCircle(Part.Circle(V(213.672881, 33, 0), V(0, 0, 1), 3.25), math.radians(90), math.radians(270)), False)
sketch23.addConstraint(Sketcher.Constraint("Tangent", 0, 2, 1, 2))
sketch23.addConstraint(Sketcher.Constraint("Tangent", 1, 1, 2, 1))
sketch23.addConstraint(Sketcher.Constraint("Tangent", 2, 2, 3, 2))
sketch23.addConstraint(Sketcher.Constraint("Tangent", 3, 1, 0, 1))
sketch23.addConstraint(Sketcher.Constraint("Horizontal", 0))
sketch23.addConstraint(Sketcher.Constraint("Horizontal", 2))
sketch23.addConstraint(Sketcher.Constraint("Radius", 1, Q("3.25 mm")))
sketch23.addConstraint(Sketcher.Constraint("DistanceX", 0, 1, 0, 2, Q("6.5 mm")))
sketch23.addConstraint(Sketcher.Constraint("DistanceY", -1, 1, 1, 3, Q("33 mm")))
sketch23.addConstraint(Sketcher.Constraint("DistanceX", -1, 1, 1, 3, Q("220.172881 mm")))
pocket22 = doc.addObject("PartDesign::Pocket", "Pocket021")
body.addObject(pocket22)
pocket22.Profile = sketch23
pocket22.Type = "UpToFirst"
pocket22.Reversed = True

# Sketch on XZ plane
sketch24 = doc.addObject("Sketcher::SketchObject", "Sketch023")
body.addObject(sketch24)
sketch24.AttachmentSupport = (doc.XZ_Plane, [""])
sketch24.MapMode = "FlatFace"
sketch24.AttachmentOffset = App.Placement(V(0, 0, -2), App.Rotation())
sketch24.addGeometry(Part.LineSegment(V(183.672881, -29.75, 0), V(190.172881, -29.75, 0)), False)
sketch24.addGeometry(Part.ArcOfCircle(Part.Circle(V(190.172881, -33, 0), V(0, 0, 1), 3.25), math.radians(-90), math.radians(90)), False)
sketch24.addGeometry(Part.LineSegment(V(190.172881, -36.25, 0), V(183.672881, -36.25, 0)), False)
sketch24.addGeometry(Part.ArcOfCircle(Part.Circle(V(183.672881, -33, 0), V(0, 0, 1), 3.25), math.radians(90), math.radians(270)), False)
sketch24.addConstraint(Sketcher.Constraint("Tangent", 0, 2, 1, 2))
sketch24.addConstraint(Sketcher.Constraint("Tangent", 1, 1, 2, 1))
sketch24.addConstraint(Sketcher.Constraint("Tangent", 2, 2, 3, 2))
sketch24.addConstraint(Sketcher.Constraint("Tangent", 3, 1, 0, 1))
sketch24.addConstraint(Sketcher.Constraint("Horizontal", 0))
sketch24.addConstraint(Sketcher.Constraint("Horizontal", 2))
sketch24.addConstraint(Sketcher.Constraint("Radius", 1, Q("3.25 mm")))
sketch24.addConstraint(Sketcher.Constraint("DistanceX", 0, 1, 0, 2, Q("6.5 mm")))
sketch24.addConstraint(Sketcher.Constraint("DistanceY", 1, 3, -1, 1, Q("33 mm")))
sketch24.addConstraint(Sketcher.Constraint("DistanceX", -1, 1, 1, 3, Q("190.172881 mm")))
pocket23 = doc.addObject("PartDesign::Pocket", "Pocket022")
body.addObject(pocket23)
pocket23.Profile = sketch24
pocket23.Type = "UpToFirst"
pocket23.Reversed = True

# Sketch on XZ plane
sketch25 = doc.addObject("Sketcher::SketchObject", "Sketch024")
body.addObject(sketch25)
sketch25.AttachmentSupport = (doc.XZ_Plane, [""])
sketch25.MapMode = "FlatFace"
sketch25.AttachmentOffset = App.Placement(V(0, 0, -2), App.Rotation())
sketch25.addGeometry(Part.LineSegment(V(213.672881, -29.75, 0), V(220.172881, -29.75, 0)), False)
sketch25.addGeometry(Part.ArcOfCircle(Part.Circle(V(220.172881, -33, 0), V(0, 0, 1), 3.25), math.radians(-90), math.radians(90)), False)
sketch25.addGeometry(Part.LineSegment(V(220.172881, -36.25, 0), V(213.672881, -36.25, 0)), False)
sketch25.addGeometry(Part.ArcOfCircle(Part.Circle(V(213.672881, -33, 0), V(0, 0, 1), 3.25), math.radians(90), math.radians(270)), False)
sketch25.addConstraint(Sketcher.Constraint("Tangent", 0, 2, 1, 2))
sketch25.addConstraint(Sketcher.Constraint("Tangent", 1, 1, 2, 1))
sketch25.addConstraint(Sketcher.Constraint("Tangent", 2, 2, 3, 2))
sketch25.addConstraint(Sketcher.Constraint("Tangent", 3, 1, 0, 1))
sketch25.addConstraint(Sketcher.Constraint("Horizontal", 0))
sketch25.addConstraint(Sketcher.Constraint("Horizontal", 2))
sketch25.addConstraint(Sketcher.Constraint("Radius", 1, Q("3.25 mm")))
sketch25.addConstraint(Sketcher.Constraint("DistanceX", 0, 1, 0, 2, Q("6.5 mm")))
sketch25.addConstraint(Sketcher.Constraint("DistanceY", 1, 3, -1, 1, Q("33 mm")))
sketch25.addConstraint(Sketcher.Constraint("DistanceX", -1, 1, 1, 3, Q("220.172881 mm")))
pocket24 = doc.addObject("PartDesign::Pocket", "Pocket023")
body.addObject(pocket24)
pocket24.Profile = sketch25
pocket24.Type = "UpToFirst"
pocket24.Reversed = True

# Sketch on XZ plane
sketch26 = doc.addObject("Sketcher::SketchObject", "Sketch025")
body.addObject(sketch26)
sketch26.AttachmentSupport = (doc.XZ_Plane, [""])
sketch26.MapMode = "FlatFace"
sketch26.addGeometry(Part.Circle(V(-40.589547, 122.572891, 0), V(0, 0, 1), 1.6), False)
sketch26.addConstraint(Sketcher.Constraint("Diameter", 0, Q("3.2 mm")))
sketch26.addConstraint(Sketcher.Constraint("DistanceY", -1, 1, 0, 3, Q("122.572891 mm")))
sketch26.addConstraint(Sketcher.Constraint("DistanceX", 0, 3, -1, 1, Q("40.589547 mm")))
pocket25 = doc.addObject("PartDesign::Pocket", "Pocket024")
body.addObject(pocket25)
pocket25.Profile = sketch26
pocket25.Type = "UpToFirst"

# Sketch on XZ plane
sketch27 = doc.addObject("Sketcher::SketchObject", "Sketch026")
body.addObject(sketch27)
sketch27.AttachmentSupport = (doc.XZ_Plane, [""])
sketch27.MapMode = "FlatFace"
sketch27.addGeometry(Part.Circle(V(-117.462874, 79.100697, 0), V(0, 0, 1), 1.6), False)
sketch27.addConstraint(Sketcher.Constraint("Diameter", 0, Q("3.2 mm")))
sketch27.addConstraint(Sketcher.Constraint("DistanceX", 0, 3, -1, 1, Q("117.462874 mm")))
sketch27.addConstraint(Sketcher.Constraint("DistanceY", -1, 1, 0, 3, Q("79.100697 mm")))
pocket26 = doc.addObject("PartDesign::Pocket", "Pocket025")
body.addObject(pocket26)
pocket26.Profile = sketch27
pocket26.Type = "UpToFirst"

# Sketch on XZ plane
sketch28 = doc.addObject("Sketcher::SketchObject", "Sketch027")
body.addObject(sketch28)
sketch28.AttachmentSupport = (doc.XZ_Plane, [""])
sketch28.MapMode = "FlatFace"
sketch28.addGeometry(Part.Circle(V(-132.735952, 32.807799, 0), V(0, 0, 1), 1.6), False)
sketch28.addConstraint(Sketcher.Constraint("Diameter", 0, Q("3.2 mm")))
sketch28.addConstraint(Sketcher.Constraint("DistanceY", -1, 1, 0, 3, Q("32.807799 mm")))
sketch28.addConstraint(Sketcher.Constraint("DistanceX", 0, 3, -1, 1, Q("132.735952 mm")))
pocket27 = doc.addObject("PartDesign::Pocket", "Pocket026")
body.addObject(pocket27)
pocket27.Profile = sketch28
pocket27.Type = "UpToFirst"

# Sketch on XZ plane
sketch29 = doc.addObject("Sketcher::SketchObject", "Sketch028")
body.addObject(sketch29)
sketch29.AttachmentSupport = (doc.XZ_Plane, [""])
sketch29.MapMode = "FlatFace"
sketch29.addGeometry(Part.Circle(V(-122.117014, 32.807799, 0), V(0, 0, 1), 1.6), False)
sketch29.addConstraint(Sketcher.Constraint("Diameter", 0, Q("3.2 mm")))
sketch29.addConstraint(Sketcher.Constraint("DistanceY", -1, 1, 0, 3, Q("32.807799 mm")))
sketch29.addConstraint(Sketcher.Constraint("DistanceX", 0, 3, -1, 1, Q("122.117014 mm")))
pocket28 = doc.addObject("PartDesign::Pocket", "Pocket027")
body.addObject(pocket28)
pocket28.Profile = sketch29
pocket28.Type = "UpToFirst"

# Sketch on XZ plane
sketch30 = doc.addObject("Sketcher::SketchObject", "Sketch029")
body.addObject(sketch30)
sketch30.AttachmentSupport = (doc.XZ_Plane, [""])
sketch30.MapMode = "FlatFace"
sketch30.addGeometry(Part.Circle(V(-42.784435, 148.220419, 0), V(0, 0, 1), 2.25), False)
sketch30.addConstraint(Sketcher.Constraint("Diameter", 0, Q("4.5 mm")))
sketch30.addConstraint(Sketcher.Constraint("DistanceY", -1, 1, 0, 3, Q("148.220419 mm")))
sketch30.addConstraint(Sketcher.Constraint("DistanceX", 0, 3, -1, 1, Q("42.784435 mm")))
pocket29 = doc.addObject("PartDesign::Pocket", "Pocket028")
body.addObject(pocket29)
pocket29.Profile = sketch30
pocket29.Type = "UpToFirst"

# Sketch on XZ plane
sketch31 = doc.addObject("Sketcher::SketchObject", "Sketch030")
body.addObject(sketch31)
sketch31.AttachmentSupport = (doc.XZ_Plane, [""])
sketch31.MapMode = "FlatFace"
sketch31.addGeometry(Part.Circle(V(-52.784435, 148.220419, 0), V(0, 0, 1), 2.25), False)
sketch31.addConstraint(Sketcher.Constraint("Diameter", 0, Q("4.5 mm")))
sketch31.addConstraint(Sketcher.Constraint("DistanceY", -1, 1, 0, 3, Q("148.220419 mm")))
sketch31.addConstraint(Sketcher.Constraint("DistanceX", 0, 3, -1, 1, Q("52.784435 mm")))
pocket30 = doc.addObject("PartDesign::Pocket", "Pocket029")
body.addObject(pocket30)
pocket30.Profile = sketch31
pocket30.Type = "UpToFirst"

# Sketch on XZ plane
sketch32 = doc.addObject("Sketcher::SketchObject", "Sketch031")
body.addObject(sketch32)
sketch32.AttachmentSupport = (doc.XZ_Plane, [""])
sketch32.MapMode = "FlatFace"
sketch32.addGeometry(Part.Circle(V(-62.784435, 148.220419, 0), V(0, 0, 1), 2.25), False)
sketch32.addConstraint(Sketcher.Constraint("Diameter", 0, Q("4.5 mm")))
sketch32.addConstraint(Sketcher.Constraint("DistanceY", -1, 1, 0, 3, Q("148.220419 mm")))
sketch32.addConstraint(Sketcher.Constraint("DistanceX", 0, 3, -1, 1, Q("62.784435 mm")))
pocket31 = doc.addObject("PartDesign::Pocket", "Pocket030")
body.addObject(pocket31)
pocket31.Profile = sketch32
pocket31.Type = "UpToFirst"

# Sketch on XZ plane
sketch33 = doc.addObject("Sketcher::SketchObject", "Sketch032")
body.addObject(sketch33)
sketch33.AttachmentSupport = (doc.XZ_Plane, [""])
sketch33.MapMode = "FlatFace"
sketch33.addGeometry(Part.Circle(V(-82.784435, 148.220419, 0), V(0, 0, 1), 2.25), False)
sketch33.addConstraint(Sketcher.Constraint("Diameter", 0, Q("4.5 mm")))
sketch33.addConstraint(Sketcher.Constraint("DistanceY", -1, 1, 0, 3, Q("148.220419 mm")))
sketch33.addConstraint(Sketcher.Constraint("DistanceX", 0, 3, -1, 1, Q("82.784435 mm")))
pocket32 = doc.addObject("PartDesign::Pocket", "Pocket031")
body.addObject(pocket32)
pocket32.Profile = sketch33
pocket32.Type = "UpToFirst"

# Sketch on XZ plane
sketch34 = doc.addObject("Sketcher::SketchObject", "Sketch033")
body.addObject(sketch34)
sketch34.AttachmentSupport = (doc.XZ_Plane, [""])
sketch34.MapMode = "FlatFace"
sketch34.addGeometry(Part.Circle(V(-92.784435, 148.220419, 0), V(0, 0, 1), 2.25), False)
sketch34.addConstraint(Sketcher.Constraint("Diameter", 0, Q("4.5 mm")))
sketch34.addConstraint(Sketcher.Constraint("DistanceY", -1, 1, 0, 3, Q("148.220419 mm")))
sketch34.addConstraint(Sketcher.Constraint("DistanceX", 0, 3, -1, 1, Q("92.784435 mm")))
pocket33 = doc.addObject("PartDesign::Pocket", "Pocket032")
body.addObject(pocket33)
pocket33.Profile = sketch34
pocket33.Type = "UpToFirst"

# Sketch on XZ plane
sketch35 = doc.addObject("Sketcher::SketchObject", "Sketch034")
body.addObject(sketch35)
sketch35.AttachmentSupport = (doc.XZ_Plane, [""])
sketch35.MapMode = "FlatFace"
sketch35.addGeometry(Part.Circle(V(-102.784435, 148.220419, 0), V(0, 0, 1), 2.25), False)
sketch35.addConstraint(Sketcher.Constraint("Diameter", 0, Q("4.5 mm")))
sketch35.addConstraint(Sketcher.Constraint("DistanceY", -1, 1, 0, 3, Q("148.220419 mm")))
sketch35.addConstraint(Sketcher.Constraint("DistanceX", 0, 3, -1, 1, Q("102.784435 mm")))
pocket34 = doc.addObject("PartDesign::Pocket", "Pocket033")
body.addObject(pocket34)
pocket34.Profile = sketch35
pocket34.Type = "UpToFirst"

# Sketch on XZ plane
sketch36 = doc.addObject("Sketcher::SketchObject", "Sketch035")
body.addObject(sketch36)
sketch36.AttachmentSupport = (doc.XZ_Plane, [""])
sketch36.MapMode = "FlatFace"
sketch36.addGeometry(Part.Circle(V(-122.784435, 148.220419, 0), V(0, 0, 1), 2.25), False)
sketch36.addConstraint(Sketcher.Constraint("Diameter", 0, Q("4.5 mm")))
sketch36.addConstraint(Sketcher.Constraint("DistanceY", -1, 1, 0, 3, Q("148.220419 mm")))
sketch36.addConstraint(Sketcher.Constraint("DistanceX", 0, 3, -1, 1, Q("122.784435 mm")))
pocket35 = doc.addObject("PartDesign::Pocket", "Pocket034")
body.addObject(pocket35)
pocket35.Profile = sketch36
pocket35.Type = "UpToFirst"

# Sketch on XZ plane
sketch37 = doc.addObject("Sketcher::SketchObject", "Sketch036")
body.addObject(sketch37)
sketch37.AttachmentSupport = (doc.XZ_Plane, [""])
sketch37.MapMode = "FlatFace"
sketch37.addGeometry(Part.Circle(V(-132.784435, 148.220419, 0), V(0, 0, 1), 2.25), False)
sketch37.addConstraint(Sketcher.Constraint("Diameter", 0, Q("4.5 mm")))
sketch37.addConstraint(Sketcher.Constraint("DistanceY", -1, 1, 0, 3, Q("148.220419 mm")))
sketch37.addConstraint(Sketcher.Constraint("DistanceX", 0, 3, -1, 1, Q("132.784435 mm")))
pocket36 = doc.addObject("PartDesign::Pocket", "Pocket035")
body.addObject(pocket36)
pocket36.Profile = sketch37
pocket36.Type = "UpToFirst"

# Sketch on XZ plane
sketch38 = doc.addObject("Sketcher::SketchObject", "Sketch037")
body.addObject(sketch38)
sketch38.AttachmentSupport = (doc.XZ_Plane, [""])
sketch38.MapMode = "FlatFace"
sketch38.addGeometry(Part.Circle(V(-142.784435, 148.220419, 0), V(0, 0, 1), 2.25), False)
sketch38.addConstraint(Sketcher.Constraint("Diameter", 0, Q("4.5 mm")))
sketch38.addConstraint(Sketcher.Constraint("DistanceY", -1, 1, 0, 3, Q("148.220419 mm")))
sketch38.addConstraint(Sketcher.Constraint("DistanceX", 0, 3, -1, 1, Q("142.784435 mm")))
pocket37 = doc.addObject("PartDesign::Pocket", "Pocket036")
body.addObject(pocket37)
pocket37.Profile = sketch38
pocket37.Type = "UpToFirst"

doc.recompute()
